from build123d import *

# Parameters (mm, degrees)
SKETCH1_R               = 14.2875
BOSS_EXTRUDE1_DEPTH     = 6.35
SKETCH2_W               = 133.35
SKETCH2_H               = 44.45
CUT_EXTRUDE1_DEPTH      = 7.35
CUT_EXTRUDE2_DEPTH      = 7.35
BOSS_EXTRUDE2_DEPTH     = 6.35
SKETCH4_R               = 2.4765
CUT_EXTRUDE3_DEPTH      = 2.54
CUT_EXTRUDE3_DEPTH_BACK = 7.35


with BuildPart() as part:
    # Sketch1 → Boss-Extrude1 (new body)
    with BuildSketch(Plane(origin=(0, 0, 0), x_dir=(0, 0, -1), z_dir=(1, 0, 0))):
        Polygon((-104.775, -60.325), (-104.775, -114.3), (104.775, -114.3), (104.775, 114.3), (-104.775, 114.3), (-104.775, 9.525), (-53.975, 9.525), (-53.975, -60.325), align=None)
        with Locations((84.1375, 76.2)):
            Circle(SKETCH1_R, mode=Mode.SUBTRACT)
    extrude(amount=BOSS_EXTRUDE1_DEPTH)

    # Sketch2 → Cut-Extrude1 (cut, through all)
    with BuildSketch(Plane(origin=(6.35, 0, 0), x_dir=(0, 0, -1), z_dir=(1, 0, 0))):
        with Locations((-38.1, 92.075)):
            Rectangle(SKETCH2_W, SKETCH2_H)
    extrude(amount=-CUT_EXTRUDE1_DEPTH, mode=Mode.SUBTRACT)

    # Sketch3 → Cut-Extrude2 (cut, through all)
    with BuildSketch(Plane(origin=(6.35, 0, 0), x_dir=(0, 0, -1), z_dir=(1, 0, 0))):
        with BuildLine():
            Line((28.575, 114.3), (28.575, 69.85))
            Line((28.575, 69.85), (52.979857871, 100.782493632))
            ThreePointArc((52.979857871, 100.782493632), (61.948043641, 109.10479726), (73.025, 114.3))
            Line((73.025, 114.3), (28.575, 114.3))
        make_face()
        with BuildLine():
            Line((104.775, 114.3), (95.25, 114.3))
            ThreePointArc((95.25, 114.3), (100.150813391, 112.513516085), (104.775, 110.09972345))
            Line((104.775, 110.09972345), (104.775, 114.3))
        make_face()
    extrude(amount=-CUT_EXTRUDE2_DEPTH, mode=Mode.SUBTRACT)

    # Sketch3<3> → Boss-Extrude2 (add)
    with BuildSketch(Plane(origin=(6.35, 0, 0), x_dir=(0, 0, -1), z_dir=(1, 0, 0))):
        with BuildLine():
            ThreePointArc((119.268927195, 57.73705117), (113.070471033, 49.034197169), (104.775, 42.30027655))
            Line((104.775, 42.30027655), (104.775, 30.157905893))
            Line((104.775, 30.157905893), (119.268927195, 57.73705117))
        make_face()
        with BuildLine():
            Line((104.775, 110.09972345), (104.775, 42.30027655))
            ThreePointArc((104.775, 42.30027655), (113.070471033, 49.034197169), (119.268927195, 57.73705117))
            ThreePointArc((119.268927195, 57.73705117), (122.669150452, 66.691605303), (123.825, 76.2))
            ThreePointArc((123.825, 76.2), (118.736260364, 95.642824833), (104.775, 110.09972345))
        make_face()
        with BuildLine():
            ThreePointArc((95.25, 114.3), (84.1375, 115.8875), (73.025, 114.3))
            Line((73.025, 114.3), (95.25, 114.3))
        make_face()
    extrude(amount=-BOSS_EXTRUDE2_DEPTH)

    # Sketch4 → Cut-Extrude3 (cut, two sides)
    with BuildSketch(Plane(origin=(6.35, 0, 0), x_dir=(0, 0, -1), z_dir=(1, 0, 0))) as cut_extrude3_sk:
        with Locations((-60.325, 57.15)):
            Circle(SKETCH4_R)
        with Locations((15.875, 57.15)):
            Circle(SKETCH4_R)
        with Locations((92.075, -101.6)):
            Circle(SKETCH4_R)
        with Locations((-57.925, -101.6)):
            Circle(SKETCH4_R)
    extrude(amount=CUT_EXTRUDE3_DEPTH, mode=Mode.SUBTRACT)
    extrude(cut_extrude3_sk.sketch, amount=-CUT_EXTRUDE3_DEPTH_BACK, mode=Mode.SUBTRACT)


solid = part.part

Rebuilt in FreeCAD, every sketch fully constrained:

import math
import FreeCAD as App
import Part
import Sketcher
Q = App.Units.Quantity

doc = App.newDocument("Part")
body = doc.addObject("PartDesign::Body", "Body")

sketch1 = doc.addObject("Sketcher::SketchObject", "Sketch")
body.addObject(sketch1)
sketch1.AttachmentSupport = (doc.YZ_Plane, [""])
sketch1.MapMode = "FlatFace"
sketch1.addGeometry(Part.LineSegment(App.Vector(-60, 105, 0), App.Vector(-114, 105, 0)), False)
sketch1.addGeometry(Part.LineSegment(App.Vector(-114, 105, 0), App.Vector(-114, -105, 0)), False)
sketch1.addGeometry(Part.LineSegment(App.Vector(-114, -105, 0), App.Vector(114, -105, 0)), False)
sketch1.addGeometry(Part.LineSegment(App.Vector(114, -105, 0), App.Vector(114, 105, 0)), False)
sketch1.addGeometry(Part.LineSegment(App.Vector(114, 105, 0), App.Vector(10, 105, 0)), False)
sketch1.addGeometry(Part.LineSegment(App.Vector(10, 105, 0), App.Vector(10, 54, 0)), False)
sketch1.addGeometry(Part.LineSegment(App.Vector(10, 54, 0), App.Vector(-60, 54, 0)), False)
sketch1.addGeometry(Part.LineSegment(App.Vector(-60, 54, 0), App.Vector(-60, 105, 0)), False)
sketch1.addGeometry(Part.Circle(App.Vector(76, -84, 0), App.Vector(0, 0, 1), 14), False)
sketch1.addConstraint(Sketcher.Constraint("Coincident", 0, 2, 1, 1))
sketch1.addConstraint(Sketcher.Constraint("Coincident", 1, 2, 2, 1))
sketch1.addConstraint(Sketcher.Constraint("Coincident", 2, 2, 3, 1))
sketch1.addConstraint(Sketcher.Constraint("Coincident", 3, 2, 4, 1))
sketch1.addConstraint(Sketcher.Constraint("Coincident", 4, 2, 5, 1))
sketch1.addConstraint(Sketcher.Constraint("Coincident", 5, 2, 6, 1))
sketch1.addConstraint(Sketcher.Constraint("Coincident", 6, 2, 7, 1))
sketch1.addConstraint(Sketcher.Constraint("Coincident", 7, 2, 0, 1))
sketch1.addConstraint(Sketcher.Constraint("Horizontal", 0))
sketch1.addConstraint(Sketcher.Constraint("Vertical", 1))
sketch1.addConstraint(Sketcher.Constraint("Horizontal", 2))
sketch1.addConstraint(Sketcher.Constraint("Vertical", 3))
sketch1.addConstraint(Sketcher.Constraint("Horizontal", 4))
sketch1.addConstraint(Sketcher.Constraint("Vertical", 5))
sketch1.addConstraint(Sketcher.Constraint("Horizontal", 6))
sketch1.addConstraint(Sketcher.Constraint("Vertical", 7))
sketch1.addConstraint(Sketcher.Constraint("Symmetric", 0, 2, 2, 2, -1, 1))
sketch1.addConstraint(Sketcher.Constraint("Horizontal", 0, 2, 3, 2))
sketch1.addConstraint(Sketcher.Constraint("DistanceX", 2, 1, 2, 2, Q("9 in")))
sketch1.addConstraint(Sketcher.Constraint("DistanceY", 5, 2, 5, 1, Q("2 in")))
sketch1.addConstraint(Sketcher.Constraint("Diameter", 8, Q("1.125 in")))
sketch1.addConstraint(Sketcher.Constraint("DistanceX", -1, 1, 8, 3, Q("3 in")))
sketch1.addConstraint(Sketcher.Constraint("DistanceX", 6, 2, 6, 1, Q("2.75 in")))
sketch1.addConstraint(Sketcher.Constraint("DistanceY", 1, 2, 1, 1, Q("8.25 in")))
sketch1.addConstraint(Sketcher.Constraint("DistanceX", 0, 2, 0, 1, Q("2.125 in")))
sketch1.addConstraint(Sketcher.Constraint("DistanceY", 8, 3, -1, 1, Q("3.3125 in")))
pad1 = doc.addObject("PartDesign::Pad", "Pad")
body.addObject(pad1)
pad1.Profile = sketch1
pad1.Length = Q("0.25 in")

sketch2 = doc.addObject("Sketcher::SketchObject", "Sketch001")
body.addObject(sketch2)
sketch2.AttachmentSupport = (doc.YZ_Plane, [""])
sketch2.MapMode = "FlatFace"
sketch2.AttachmentOffset = App.Placement(App.Vector(0, 0, 0.25 * 25.4), App.Rotation())
sketch2.addGeometry(Part.LineSegment(App.Vector(114, 105, 0), App.Vector(70, 105, 0)), False)
sketch2.addGeometry(Part.LineSegment(App.Vector(70, 105, 0), App.Vector(70, -29, 0)), False)
sketch2.addGeometry(Part.LineSegment(App.Vector(70, -29, 0), App.Vector(114, -29, 0)), False)
sketch2.addGeometry(Part.LineSegment(App.Vector(114, -29, 0), App.Vector(114, 105, 0)), False)
sketch2.addConstraint(Sketcher.Constraint("Coincident", 0, 2, 1, 1))
sketch2.addConstraint(Sketcher.Constraint("Coincident", 1, 2, 2, 1))
sketch2.addConstraint(Sketcher.Constraint("Coincident", 2, 2, 3, 1))
sketch2.addConstraint(Sketcher.Constraint("Coincident", 3, 2, 0, 1))
sketch2.addConstraint(Sketcher.Constraint("Horizontal", 0))
sketch2.addConstraint(Sketcher.Constraint("Vertical", 1))
sketch2.addConstraint(Sketcher.Constraint("Horizontal", 2))
sketch2.addConstraint(Sketcher.Constraint("Vertical", 3))
sketch2.addConstraint(Sketcher.Constraint("DistanceX", 0, 2, 0, 1, Q("1.75 in")))
sketch2.addConstraint(Sketcher.Constraint("DistanceY", 1, 2, 1, 1, Q("5.25 in")))
sketch2.addConstraint(Sketcher.Constraint("DistanceX", -1, 1, 2, 2, Q("4.5 in")))
sketch2.addConstraint(Sketcher.Constraint("DistanceY", -1, 1, 0, 2, Q("4.125 in")))
pocket1 = doc.addObject("PartDesign::Pocket", "Pocket")
body.addObject(pocket1)
pocket1.Profile = sketch2
pocket1.Type = "ThroughAll"

sketch3 = doc.addObject("Sketcher::SketchObject", "Sketch002")
body.addObject(sketch3)
sketch3.AttachmentSupport = (doc.YZ_Plane, [""])
sketch3.MapMode = "FlatFace"
sketch3.AttachmentOffset = App.Placement(App.Vector(0, 0, 0.25 * 25.4), App.Rotation())
sketch3.addGeometry(Part.LineSegment(App.Vector(114.3, -28.6, 0), App.Vector(69.8, -28.6, 0)), False)
sketch3.addGeometry(Part.LineSegment(App.Vector(69.8, -28.6, 0), App.Vector(100.8, -53, 0)), False)
sketch3.addGeometry(Part.ArcOfCircle(Part.Circle(App.Vector(76.2, -84.1, 0), App.Vector(0, 0, 1), 39.7), math.radians(16), math.radians(52)), False)
sketch3.addGeometry(Part.LineSegment(App.Vector(114.3, -73, 0), App.Vector(114.3, -28.6, 0)), False)
sketch3.addGeometry(Part.LineSegment(App.Vector(114.3, -104.8, 0), App.Vector(114.3, -95.2, 0)), False)
sketch3.addGeometry(Part.ArcOfCircle(Part.Circle(App.Vector(76.2, -84.1, 0), App.Vector(0, 0, 1), 39.7), math.radians(-31.33), math.radians(-16.26)), False)
sketch3.addGeometry(Part.LineSegment(App.Vector(110.1, -104.8, 0), App.Vector(114.3, -104.8, 0)), False)
sketch3.addConstraint(Sketcher.Constraint("Coincident", 0, 2, 1, 1))
sketch3.addConstraint(Sketcher.Constraint("Tangent", 1, 2, 2, 2))
sketch3.addConstraint(Sketcher.Constraint("Coincident", 2, 1, 3, 1))
sketch3.addConstraint(Sketcher.Constraint("Coincident", 3, 2, 0, 1))
sketch3.addConstraint(Sketcher.Constraint("Coincident", 4, 2, 5, 2))
sketch3.addConstraint(Sketcher.Constraint("Coincident", 5, 1, 6, 1))
sketch3.addConstraint(Sketcher.Constraint("Coincident", 6, 2, 4, 1))
sketch3.addConstraint(Sketcher.Constraint("Horizontal", 0))
sketch3.addConstraint(Sketcher.Constraint("Vertical", 3))
sketch3.addConstraint(Sketcher.Constraint("Vertical", 4))
sketch3.addConstraint(Sketcher.Constraint("Horizontal", 6))
sketch3.addConstraint(Sketcher.Constraint("Coincident", 5, 3, 2, 3))
sketch3.addConstraint(Sketcher.Constraint("Equal", 2, 5))
sketch3.addConstraint(Sketcher.Constraint("Vertical", 3, 2, 4, 2))
sketch3.addConstraint(Sketcher.Constraint("Equal", 0, 3))
sketch3.addConstraint(Sketcher.Constraint("DistanceX", -1, 1, 2, 3, Q("3 in")))
sketch3.addConstraint(Sketcher.Constraint("Radius", 2, Q("1.5625 in")))
sketch3.addConstraint(Sketcher.Constraint("DistanceX", 0, 2, 0, 1, Q("1.75 in")))
sketch3.addConstraint(Sketcher.Constraint("DistanceX", -1, 1, 2, 1, Q("4.5 in")))
sketch3.addConstraint(Sketcher.Constraint("DistanceY", 4, 1, 4, 2, Q("0.375 in")))
sketch3.addConstraint(Sketcher.Constraint("DistanceY", 4, 2, -1, 1, Q("3.75 in")))
pocket2 = doc.addObject("PartDesign::Pocket", "Pocket001")
body.addObject(pocket2)
pocket2.Profile = sketch3
pocket2.Type = "ThroughAll"

sketch4 = doc.addObject("Sketcher::SketchObject", "Sketch003")
body.addObject(sketch4)
sketch4.AttachmentSupport = (doc.YZ_Plane, [""])
sketch4.MapMode = "FlatFace"
sketch4.AttachmentOffset = App.Placement(App.Vector(0, 0, 0.25 * 25.4), App.Rotation())
sketch4.addGeometry(Part.LineSegment(App.Vector(30, -105, 0), App.Vector(58, -119, 0)), False)
sketch4.addGeometry(Part.ArcOfCircle(Part.Circle(App.Vector(76, -84, 0), App.Vector(0, 0, 1), 40), math.radians(-118), math.radians(-90)), False)
sketch4.addGeometry(Part.ArcOfCircle(Part.Circle(App.Vector(76, -84, 0), App.Vector(0, 0, 1), 40), math.radians(-90), math.radians(-31)), False)
sketch4.addGeometry(Part.LineSegment(App.Vector(110, -105, 0), App.Vector(30, -105, 0)), False)
sketch4.addGeometry(Part.ArcOfCircle(Part.Circle(App.Vector(76, -84, 0), App.Vector(0, 0, 1), 40), math.radians(-16), math.radians(16)), False)
sketch4.addGeometry(Part.LineSegment(App.Vector(114, -73, 0), App.Vector(114, -95, 0)), False)
sketch4.addConstraint(Sketcher.Constraint("Tangent", 0, 2, 1, 1))
sketch4.addConstraint(Sketcher.Constraint("Tangent", 1, 2, 2, 1))
sketch4.addConstraint(Sketcher.Constraint("Coincident", 2, 2, 3, 1))
sketch4.addConstraint(Sketcher.Constraint("Coincident", 3, 2, 0, 1))
sketch4.addConstraint(Sketcher.Constraint("Coincident", 4, 1, 5, 2))
sketch4.addConstraint(Sketcher.Constraint("Coincident", 5, 1, 4, 2))
sketch4.addConstraint(Sketcher.Constraint("Horizontal", 3))
sketch4.addConstraint(Sketcher.Constraint("Vertical", 5))
sketch4.addConstraint(Sketcher.Constraint("Coincident", 4, 3, 1, 3))
sketch4.addConstraint(Sketcher.Constraint("Equal", 1, 2))
sketch4.addConstraint(Sketcher.Constraint("Equal", 2, 4))
sketch4.addConstraint(Sketcher.Constraint("Vertical", 4, 3, 1, 2))
sketch4.addConstraint(Sketcher.Constraint("DistanceX", -1, 1, 1, 3, Q("3 in")))
sketch4.addConstraint(Sketcher.Constraint("Radius", 1, Q("1.5625 in")))
sketch4.addConstraint(Sketcher.Constraint("DistanceX", -1, 1, 4, 1, Q("4.5 in")))
sketch4.addConstraint(Sketcher.Constraint("DistanceY", 4, 1, -1, 1, Q("3.75 in")))
sketch4.addConstraint(Sketcher.Constraint("DistanceY", 1, 2, 2, 2, Q("0.75 in")))
sketch4.addConstraint(Sketcher.Constraint("Distance", 0, 31.155789))
pad2 = doc.addObject("PartDesign::Pad", "Pad001")
body.addObject(pad2)
pad2.Profile = sketch4
pad2.Length = Q("0.25 in")
pad2.Reversed = True

sketch5 = doc.addObject("Sketcher::SketchObject", "Sketch004")
body.addObject(sketch5)
sketch5.AttachmentSupport = (doc.YZ_Plane, [""])
sketch5.MapMode = "FlatFace"
sketch5.AttachmentOffset = App.Placement(App.Vector(0, 0, 0.25 * 25.4), App.Rotation())
sketch5.addGeometry(Part.Circle(App.Vector(57.1, 60.3, 0), App.Vector(0, 0, 1), 2.5), False)
sketch5.addGeometry(Part.Circle(App.Vector(57.1, -15.9, 0), App.Vector(0, 0, 1), 2.5), False)
sketch5.addGeometry(Part.Circle(App.Vector(-101.6, -92.1, 0), App.Vector(0, 0, 1), 2.5), False)
sketch5.addGeometry(Part.Circle(App.Vector(-101.6, 57.9, 0), App.Vector(0, 0, 1), 2.5), False)
sketch5.addConstraint(Sketcher.Constraint("Equal", 0, 1))
sketch5.addConstraint(Sketcher.Constraint("Equal", 1, 2))
sketch5.addConstraint(Sketcher.Constraint("Equal", 2, 3))
sketch5.addConstraint(Sketcher.Constraint("Vertical", 0, 3, 1, 3))
sketch5.addConstraint(Sketcher.Constraint("Vertical", 2, 3, 3, 3))
sketch5.addConstraint(Sketcher.Constraint("Diameter", 0, Q("0.195 in")))
sketch5.addConstraint(Sketcher.Constraint("DistanceX", 2, 3, -1, 1, Q("4 in")))
sketch5.addConstraint(Sketcher.Constraint("DistanceY", 1, 3, 0, 3, Q("3 in")))
sketch5.addConstraint(Sketcher.Constraint("DistanceY", 2, 3, 1, 3, Q("3 in")))
sketch5.addConstraint(Sketcher.Constraint("DistanceX", -1, 1, 0, 3, Q("2.25 in")))
sketch5.addConstraint(Sketcher.Constraint("DistanceY", -1, 1, 0, 3, Q("2.375 in")))
sketch5.addConstraint(Sketcher.Constraint("DistanceY", -1, 1, 3, 3, 57.925))
pocket3 = doc.addObject("PartDesign::Pocket", "Pocket002")
body.addObject(pocket3)
pocket3.Profile = sketch5
pocket3.Type = "ThroughAll"
pocket3.Midplane = True

doc.recompute()
